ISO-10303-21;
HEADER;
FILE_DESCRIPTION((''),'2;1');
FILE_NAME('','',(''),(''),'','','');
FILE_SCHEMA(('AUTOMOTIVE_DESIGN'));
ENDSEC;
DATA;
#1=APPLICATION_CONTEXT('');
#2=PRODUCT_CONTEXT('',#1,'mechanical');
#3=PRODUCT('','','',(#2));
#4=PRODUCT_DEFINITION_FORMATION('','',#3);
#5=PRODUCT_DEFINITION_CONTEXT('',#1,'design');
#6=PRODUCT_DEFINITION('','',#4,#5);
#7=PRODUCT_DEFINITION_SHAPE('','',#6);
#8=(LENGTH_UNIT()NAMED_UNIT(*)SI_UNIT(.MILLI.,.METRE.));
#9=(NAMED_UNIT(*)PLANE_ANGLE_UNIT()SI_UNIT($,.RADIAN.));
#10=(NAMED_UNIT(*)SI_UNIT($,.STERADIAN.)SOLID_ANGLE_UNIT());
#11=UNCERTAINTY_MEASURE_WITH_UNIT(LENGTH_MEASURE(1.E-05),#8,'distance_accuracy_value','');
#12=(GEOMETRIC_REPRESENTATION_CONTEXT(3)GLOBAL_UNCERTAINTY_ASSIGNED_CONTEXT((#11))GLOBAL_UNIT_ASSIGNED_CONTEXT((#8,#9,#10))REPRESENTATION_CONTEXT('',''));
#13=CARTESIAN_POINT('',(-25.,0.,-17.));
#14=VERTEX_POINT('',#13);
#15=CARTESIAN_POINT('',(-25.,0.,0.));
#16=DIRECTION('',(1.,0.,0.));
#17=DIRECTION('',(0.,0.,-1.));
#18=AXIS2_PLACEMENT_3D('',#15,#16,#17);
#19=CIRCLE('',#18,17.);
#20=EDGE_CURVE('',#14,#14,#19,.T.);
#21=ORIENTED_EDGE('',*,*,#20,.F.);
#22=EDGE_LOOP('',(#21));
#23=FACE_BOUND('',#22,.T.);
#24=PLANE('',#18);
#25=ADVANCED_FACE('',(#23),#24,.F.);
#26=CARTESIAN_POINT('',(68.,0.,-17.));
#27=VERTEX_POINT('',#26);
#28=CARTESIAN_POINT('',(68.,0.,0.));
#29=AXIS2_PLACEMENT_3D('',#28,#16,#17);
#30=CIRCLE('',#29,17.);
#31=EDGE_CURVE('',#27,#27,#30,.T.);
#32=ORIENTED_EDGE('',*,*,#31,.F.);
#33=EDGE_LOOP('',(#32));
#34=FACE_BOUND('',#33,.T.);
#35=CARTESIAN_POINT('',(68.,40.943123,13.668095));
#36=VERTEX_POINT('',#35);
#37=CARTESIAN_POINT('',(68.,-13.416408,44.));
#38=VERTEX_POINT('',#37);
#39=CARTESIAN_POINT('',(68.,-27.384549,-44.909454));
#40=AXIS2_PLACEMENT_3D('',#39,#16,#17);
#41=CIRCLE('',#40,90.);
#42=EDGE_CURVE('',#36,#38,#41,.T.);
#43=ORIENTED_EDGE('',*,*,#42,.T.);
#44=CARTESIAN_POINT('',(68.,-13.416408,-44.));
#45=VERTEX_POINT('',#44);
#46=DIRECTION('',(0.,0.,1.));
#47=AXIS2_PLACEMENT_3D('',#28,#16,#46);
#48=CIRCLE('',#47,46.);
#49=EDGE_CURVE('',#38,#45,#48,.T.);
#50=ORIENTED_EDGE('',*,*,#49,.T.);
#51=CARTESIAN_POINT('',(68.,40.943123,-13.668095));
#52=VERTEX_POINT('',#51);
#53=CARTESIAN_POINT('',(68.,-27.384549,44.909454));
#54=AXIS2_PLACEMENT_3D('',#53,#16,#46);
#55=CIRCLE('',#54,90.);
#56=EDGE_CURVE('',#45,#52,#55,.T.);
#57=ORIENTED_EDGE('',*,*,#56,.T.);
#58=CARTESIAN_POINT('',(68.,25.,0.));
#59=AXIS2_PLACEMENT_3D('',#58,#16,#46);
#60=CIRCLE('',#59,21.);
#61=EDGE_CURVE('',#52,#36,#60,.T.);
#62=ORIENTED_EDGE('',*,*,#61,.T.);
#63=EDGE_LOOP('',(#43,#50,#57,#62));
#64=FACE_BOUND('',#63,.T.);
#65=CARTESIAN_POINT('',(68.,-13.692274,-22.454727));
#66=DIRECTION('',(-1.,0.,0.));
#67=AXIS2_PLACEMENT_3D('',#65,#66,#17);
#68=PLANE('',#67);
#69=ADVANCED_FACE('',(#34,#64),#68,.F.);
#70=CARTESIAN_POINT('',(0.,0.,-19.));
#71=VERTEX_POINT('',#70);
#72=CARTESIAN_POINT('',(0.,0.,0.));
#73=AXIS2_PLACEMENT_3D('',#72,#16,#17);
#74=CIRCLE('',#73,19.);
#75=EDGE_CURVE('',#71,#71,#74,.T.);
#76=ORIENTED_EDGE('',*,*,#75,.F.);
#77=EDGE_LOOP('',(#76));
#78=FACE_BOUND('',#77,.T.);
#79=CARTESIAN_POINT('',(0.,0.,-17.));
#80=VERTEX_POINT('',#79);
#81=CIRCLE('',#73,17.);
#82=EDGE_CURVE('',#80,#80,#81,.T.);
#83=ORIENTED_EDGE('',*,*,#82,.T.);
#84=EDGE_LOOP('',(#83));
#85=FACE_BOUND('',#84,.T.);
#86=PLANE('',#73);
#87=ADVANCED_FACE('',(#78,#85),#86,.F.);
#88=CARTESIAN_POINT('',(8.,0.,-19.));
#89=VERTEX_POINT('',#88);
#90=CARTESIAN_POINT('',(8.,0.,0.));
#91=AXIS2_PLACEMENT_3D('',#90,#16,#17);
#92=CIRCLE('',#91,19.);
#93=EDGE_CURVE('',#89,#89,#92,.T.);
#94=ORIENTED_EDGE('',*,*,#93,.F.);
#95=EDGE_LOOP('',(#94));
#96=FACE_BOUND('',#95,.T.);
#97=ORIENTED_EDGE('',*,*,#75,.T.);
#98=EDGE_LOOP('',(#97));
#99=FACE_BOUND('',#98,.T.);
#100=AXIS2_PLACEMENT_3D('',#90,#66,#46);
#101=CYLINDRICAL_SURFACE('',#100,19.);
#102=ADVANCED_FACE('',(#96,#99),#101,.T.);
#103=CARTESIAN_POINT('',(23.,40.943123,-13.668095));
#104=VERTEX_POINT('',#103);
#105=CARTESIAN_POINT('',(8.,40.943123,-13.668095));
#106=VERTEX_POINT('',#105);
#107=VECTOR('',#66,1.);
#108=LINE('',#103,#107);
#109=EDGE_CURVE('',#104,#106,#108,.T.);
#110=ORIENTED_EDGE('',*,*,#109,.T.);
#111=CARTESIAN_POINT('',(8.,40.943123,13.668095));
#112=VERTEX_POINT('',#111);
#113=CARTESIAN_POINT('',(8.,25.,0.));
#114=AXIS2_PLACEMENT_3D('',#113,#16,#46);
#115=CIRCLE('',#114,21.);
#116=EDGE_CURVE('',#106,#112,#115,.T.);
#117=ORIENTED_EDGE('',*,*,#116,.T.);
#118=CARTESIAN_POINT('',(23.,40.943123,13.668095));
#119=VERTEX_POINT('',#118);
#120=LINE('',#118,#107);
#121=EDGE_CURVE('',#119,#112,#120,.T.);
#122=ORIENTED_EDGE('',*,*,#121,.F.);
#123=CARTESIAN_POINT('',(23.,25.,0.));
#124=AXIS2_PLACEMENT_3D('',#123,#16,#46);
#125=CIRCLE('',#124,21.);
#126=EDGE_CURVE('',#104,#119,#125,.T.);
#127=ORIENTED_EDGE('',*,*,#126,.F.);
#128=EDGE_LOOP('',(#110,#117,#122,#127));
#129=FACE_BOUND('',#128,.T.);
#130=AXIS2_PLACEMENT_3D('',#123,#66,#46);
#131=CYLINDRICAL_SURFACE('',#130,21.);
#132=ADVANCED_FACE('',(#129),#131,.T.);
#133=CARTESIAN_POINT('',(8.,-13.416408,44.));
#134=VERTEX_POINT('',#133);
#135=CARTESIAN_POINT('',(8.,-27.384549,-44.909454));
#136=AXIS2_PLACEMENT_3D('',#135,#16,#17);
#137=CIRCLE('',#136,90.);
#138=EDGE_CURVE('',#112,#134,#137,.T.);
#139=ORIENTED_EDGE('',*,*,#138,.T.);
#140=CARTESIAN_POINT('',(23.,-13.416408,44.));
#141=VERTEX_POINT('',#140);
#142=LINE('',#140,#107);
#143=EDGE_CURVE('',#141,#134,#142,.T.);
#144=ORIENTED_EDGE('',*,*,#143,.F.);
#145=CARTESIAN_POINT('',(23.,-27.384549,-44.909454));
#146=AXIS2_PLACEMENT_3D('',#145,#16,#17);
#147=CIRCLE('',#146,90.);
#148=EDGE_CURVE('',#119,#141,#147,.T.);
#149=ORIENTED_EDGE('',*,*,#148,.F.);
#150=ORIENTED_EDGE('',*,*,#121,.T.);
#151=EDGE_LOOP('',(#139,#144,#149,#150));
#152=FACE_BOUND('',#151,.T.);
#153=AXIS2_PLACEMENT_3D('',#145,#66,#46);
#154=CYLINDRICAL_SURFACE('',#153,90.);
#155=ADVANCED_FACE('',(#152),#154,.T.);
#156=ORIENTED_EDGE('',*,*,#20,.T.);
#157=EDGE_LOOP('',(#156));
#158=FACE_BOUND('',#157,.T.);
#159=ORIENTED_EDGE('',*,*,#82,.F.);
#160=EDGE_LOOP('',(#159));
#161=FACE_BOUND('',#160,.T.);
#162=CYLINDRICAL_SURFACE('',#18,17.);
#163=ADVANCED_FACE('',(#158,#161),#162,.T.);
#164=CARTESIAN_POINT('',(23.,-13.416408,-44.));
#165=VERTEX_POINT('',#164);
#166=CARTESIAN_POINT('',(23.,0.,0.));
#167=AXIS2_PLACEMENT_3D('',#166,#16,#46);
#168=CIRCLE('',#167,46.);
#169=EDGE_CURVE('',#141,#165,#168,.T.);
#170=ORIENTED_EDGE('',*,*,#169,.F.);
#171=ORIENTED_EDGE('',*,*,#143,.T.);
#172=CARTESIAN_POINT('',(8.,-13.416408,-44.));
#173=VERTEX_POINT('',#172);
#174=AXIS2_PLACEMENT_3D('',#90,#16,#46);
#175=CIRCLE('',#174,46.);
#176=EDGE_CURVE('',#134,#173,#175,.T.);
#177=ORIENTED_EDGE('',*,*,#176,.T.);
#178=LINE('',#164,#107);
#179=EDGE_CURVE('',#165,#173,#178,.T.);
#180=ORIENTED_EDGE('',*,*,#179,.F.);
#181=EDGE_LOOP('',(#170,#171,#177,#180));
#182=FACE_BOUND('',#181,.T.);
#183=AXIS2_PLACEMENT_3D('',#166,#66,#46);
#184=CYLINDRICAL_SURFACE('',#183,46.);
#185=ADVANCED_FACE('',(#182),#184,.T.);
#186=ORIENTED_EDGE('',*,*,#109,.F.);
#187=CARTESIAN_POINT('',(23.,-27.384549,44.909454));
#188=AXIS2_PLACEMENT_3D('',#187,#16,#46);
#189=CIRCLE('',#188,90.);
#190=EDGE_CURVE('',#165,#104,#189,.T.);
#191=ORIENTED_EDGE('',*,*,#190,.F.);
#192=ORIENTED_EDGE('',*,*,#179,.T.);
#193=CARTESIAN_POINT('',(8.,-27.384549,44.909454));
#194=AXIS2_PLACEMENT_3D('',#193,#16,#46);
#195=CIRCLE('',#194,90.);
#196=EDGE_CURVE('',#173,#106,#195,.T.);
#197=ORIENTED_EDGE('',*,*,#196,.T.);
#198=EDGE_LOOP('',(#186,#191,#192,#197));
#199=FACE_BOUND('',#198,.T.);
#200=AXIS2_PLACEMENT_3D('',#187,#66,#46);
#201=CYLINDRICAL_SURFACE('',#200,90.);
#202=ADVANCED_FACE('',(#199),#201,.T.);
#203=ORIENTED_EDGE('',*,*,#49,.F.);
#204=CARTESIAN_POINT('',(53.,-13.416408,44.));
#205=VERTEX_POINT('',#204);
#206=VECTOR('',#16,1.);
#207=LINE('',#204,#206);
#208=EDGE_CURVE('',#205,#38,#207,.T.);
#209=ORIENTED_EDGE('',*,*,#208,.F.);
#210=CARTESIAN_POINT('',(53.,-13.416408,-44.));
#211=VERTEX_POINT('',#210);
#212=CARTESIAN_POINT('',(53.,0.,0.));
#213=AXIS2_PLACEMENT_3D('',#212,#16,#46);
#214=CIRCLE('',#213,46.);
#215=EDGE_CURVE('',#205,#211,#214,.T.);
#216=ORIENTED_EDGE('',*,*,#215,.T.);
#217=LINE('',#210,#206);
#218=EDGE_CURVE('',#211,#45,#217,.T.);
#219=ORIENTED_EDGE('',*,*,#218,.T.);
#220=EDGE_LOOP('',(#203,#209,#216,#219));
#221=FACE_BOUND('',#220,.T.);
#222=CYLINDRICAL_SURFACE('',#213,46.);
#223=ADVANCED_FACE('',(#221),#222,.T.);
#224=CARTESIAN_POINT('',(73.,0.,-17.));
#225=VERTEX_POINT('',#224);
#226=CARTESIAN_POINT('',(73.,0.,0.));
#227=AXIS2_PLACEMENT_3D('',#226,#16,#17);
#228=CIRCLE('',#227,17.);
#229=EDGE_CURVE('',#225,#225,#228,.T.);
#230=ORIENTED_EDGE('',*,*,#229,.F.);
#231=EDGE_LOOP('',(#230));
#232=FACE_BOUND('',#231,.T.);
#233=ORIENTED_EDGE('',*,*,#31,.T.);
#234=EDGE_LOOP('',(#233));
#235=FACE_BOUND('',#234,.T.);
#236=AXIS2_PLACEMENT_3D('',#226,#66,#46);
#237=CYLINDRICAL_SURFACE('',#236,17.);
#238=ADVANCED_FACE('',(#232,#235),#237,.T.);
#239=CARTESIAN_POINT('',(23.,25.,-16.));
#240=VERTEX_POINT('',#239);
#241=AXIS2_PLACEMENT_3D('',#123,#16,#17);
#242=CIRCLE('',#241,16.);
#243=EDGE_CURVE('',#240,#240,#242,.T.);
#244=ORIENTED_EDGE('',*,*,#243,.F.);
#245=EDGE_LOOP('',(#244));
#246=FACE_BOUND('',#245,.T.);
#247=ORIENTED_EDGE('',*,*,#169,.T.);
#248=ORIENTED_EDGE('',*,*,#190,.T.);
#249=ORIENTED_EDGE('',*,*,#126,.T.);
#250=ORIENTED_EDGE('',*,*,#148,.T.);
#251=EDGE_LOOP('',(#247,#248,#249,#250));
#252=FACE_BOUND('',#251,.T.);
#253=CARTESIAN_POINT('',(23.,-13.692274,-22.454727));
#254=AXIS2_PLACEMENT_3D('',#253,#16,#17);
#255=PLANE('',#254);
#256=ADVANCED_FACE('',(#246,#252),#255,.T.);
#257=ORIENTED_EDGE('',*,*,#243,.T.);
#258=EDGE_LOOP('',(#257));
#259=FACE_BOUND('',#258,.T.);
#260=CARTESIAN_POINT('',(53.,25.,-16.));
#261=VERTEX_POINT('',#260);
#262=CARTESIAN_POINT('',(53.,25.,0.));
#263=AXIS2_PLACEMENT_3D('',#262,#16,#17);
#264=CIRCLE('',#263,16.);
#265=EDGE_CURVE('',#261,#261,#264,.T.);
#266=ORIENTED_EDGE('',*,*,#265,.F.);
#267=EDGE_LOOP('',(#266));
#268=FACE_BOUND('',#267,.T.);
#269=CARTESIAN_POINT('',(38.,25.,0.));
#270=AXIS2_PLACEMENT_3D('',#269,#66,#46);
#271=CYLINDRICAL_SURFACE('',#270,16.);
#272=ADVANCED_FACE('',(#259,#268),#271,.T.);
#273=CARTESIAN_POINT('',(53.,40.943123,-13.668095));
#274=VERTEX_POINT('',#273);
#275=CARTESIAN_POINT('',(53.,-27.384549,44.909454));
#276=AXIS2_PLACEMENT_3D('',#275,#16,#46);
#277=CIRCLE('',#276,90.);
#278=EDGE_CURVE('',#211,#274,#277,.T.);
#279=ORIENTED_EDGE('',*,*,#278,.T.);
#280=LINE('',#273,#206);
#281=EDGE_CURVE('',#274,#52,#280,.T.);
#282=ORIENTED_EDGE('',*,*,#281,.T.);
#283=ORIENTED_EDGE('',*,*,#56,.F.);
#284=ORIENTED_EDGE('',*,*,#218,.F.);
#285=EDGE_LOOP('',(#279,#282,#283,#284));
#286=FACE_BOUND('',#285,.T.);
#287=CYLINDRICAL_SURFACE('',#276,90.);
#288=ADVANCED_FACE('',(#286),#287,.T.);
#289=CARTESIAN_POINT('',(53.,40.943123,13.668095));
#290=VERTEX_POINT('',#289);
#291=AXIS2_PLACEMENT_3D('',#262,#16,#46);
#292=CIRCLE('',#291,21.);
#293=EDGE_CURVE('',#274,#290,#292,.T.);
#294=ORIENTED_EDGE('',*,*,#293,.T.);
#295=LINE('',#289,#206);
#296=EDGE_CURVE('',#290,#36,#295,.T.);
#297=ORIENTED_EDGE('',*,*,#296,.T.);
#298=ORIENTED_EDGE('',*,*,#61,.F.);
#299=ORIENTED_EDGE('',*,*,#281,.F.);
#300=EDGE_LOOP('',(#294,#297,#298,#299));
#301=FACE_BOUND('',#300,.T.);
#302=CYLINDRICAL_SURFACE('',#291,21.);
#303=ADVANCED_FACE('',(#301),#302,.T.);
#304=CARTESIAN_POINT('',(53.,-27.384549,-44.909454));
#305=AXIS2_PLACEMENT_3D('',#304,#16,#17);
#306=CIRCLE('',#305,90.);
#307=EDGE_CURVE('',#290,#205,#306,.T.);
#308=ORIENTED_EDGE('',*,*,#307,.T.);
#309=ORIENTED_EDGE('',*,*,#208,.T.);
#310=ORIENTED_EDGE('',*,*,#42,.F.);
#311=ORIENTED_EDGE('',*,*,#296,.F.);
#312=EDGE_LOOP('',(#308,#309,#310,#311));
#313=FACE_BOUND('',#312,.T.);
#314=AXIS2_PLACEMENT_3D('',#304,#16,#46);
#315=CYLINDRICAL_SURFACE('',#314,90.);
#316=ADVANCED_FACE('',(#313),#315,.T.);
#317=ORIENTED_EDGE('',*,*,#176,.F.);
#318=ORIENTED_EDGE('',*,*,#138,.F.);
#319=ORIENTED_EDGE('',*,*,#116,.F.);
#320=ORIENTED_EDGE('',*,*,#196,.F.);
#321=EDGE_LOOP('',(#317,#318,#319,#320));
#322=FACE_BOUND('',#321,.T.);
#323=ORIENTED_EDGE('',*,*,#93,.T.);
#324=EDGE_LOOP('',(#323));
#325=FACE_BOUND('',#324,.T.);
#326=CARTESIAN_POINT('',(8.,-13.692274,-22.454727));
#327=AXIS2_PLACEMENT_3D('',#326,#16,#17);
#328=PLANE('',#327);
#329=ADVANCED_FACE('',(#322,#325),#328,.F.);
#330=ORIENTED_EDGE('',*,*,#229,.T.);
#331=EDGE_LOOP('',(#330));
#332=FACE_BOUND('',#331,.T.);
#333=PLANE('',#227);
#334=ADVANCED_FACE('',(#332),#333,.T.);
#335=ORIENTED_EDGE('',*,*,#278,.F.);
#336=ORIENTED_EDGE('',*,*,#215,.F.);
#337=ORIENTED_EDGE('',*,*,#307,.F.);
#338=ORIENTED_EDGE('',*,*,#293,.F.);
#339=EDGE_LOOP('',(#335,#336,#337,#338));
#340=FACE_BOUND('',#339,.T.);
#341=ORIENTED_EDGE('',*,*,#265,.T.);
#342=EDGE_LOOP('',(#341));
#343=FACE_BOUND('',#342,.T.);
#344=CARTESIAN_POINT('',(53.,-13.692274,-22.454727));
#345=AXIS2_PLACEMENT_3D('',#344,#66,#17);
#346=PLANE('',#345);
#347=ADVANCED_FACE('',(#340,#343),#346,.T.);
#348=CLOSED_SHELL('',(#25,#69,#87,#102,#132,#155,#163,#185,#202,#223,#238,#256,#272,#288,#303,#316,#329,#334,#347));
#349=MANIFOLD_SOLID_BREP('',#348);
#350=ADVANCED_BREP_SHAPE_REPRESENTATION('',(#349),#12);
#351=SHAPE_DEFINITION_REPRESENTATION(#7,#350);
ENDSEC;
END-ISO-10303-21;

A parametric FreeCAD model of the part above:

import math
import FreeCAD as App
import Part
import Sketcher

V = App.Vector

doc = App.newDocument("Part")
body = doc.addObject("PartDesign::Body", "Body")

sketch1 = body.newObject("Sketcher::SketchObject", "Sketch")
sketch1.AttachmentSupport = (doc.getObject("YZ_Plane"), [""])
sketch1.MapMode = "FlatFace"
sketch1.addGeometry(Part.Circle(V(0, 0, 0), V(0, 0, 1), 17), False)
sketch1.addConstraint([
    Sketcher.Constraint("Coincident", 0, 3, -1, 1),
    Sketcher.Constraint("Diameter", 0, 34.0),
])
pad1 = body.newObject("PartDesign::Pad", "Pad")
pad1.Profile = sketch1
pad1.Length = 25
pad1.Reversed = True

sketch2 = body.newObject("Sketcher::SketchObject", "Sketch001")
sketch2.AttachmentSupport = (doc.getObject("YZ_Plane"), [""])
sketch2.MapMode = "FlatFace"
sketch2.AttachmentOffset = App.Placement(V(0, 0, 8), App.Rotation())
sketch2.addGeometry(Part.Circle(V(0, 0, 0), V(0, 0, 1), 19), False)
sketch2.addConstraint([
    Sketcher.Constraint("Coincident", 0, 3, -1, 1),
    Sketcher.Constraint("Diameter", 0, 38.0),
])
pad2 = body.newObject("PartDesign::Pad", "Pad001")
pad2.Profile = sketch2
pad2.Length = 8
pad2.Reversed = True

sketch3 = body.newObject("Sketcher::SketchObject", "Sketch002")
sketch3.AttachmentSupport = (doc.getObject("YZ_Plane"), [""])
sketch3.MapMode = "FlatFace"
sketch3.AttachmentOffset = App.Placement(V(0, 0, 8), App.Rotation())
sketch3.addGeometry([
    Part.ArcOfCircle(Part.Circle(V(25, 0, 0), V(0, 0, 1), 21), math.radians(-41), math.radians(41)),
    Part.ArcOfCircle(Part.Circle(V(-27, -45, 0), V(0, 0, 1), 90), math.radians(41), math.radians(81)),
    Part.ArcOfCircle(Part.Circle(V(0, 0, 0), V(0, 0, 1), 46), math.radians(107), math.radians(253)),
    Part.ArcOfCircle(Part.Circle(V(-27, 45, 0), V(0, 0, 1), 90), math.radians(-81), math.radians(-41)),
], False)
sketch3.addConstraint([
    Sketcher.Constraint("Tangent", 0, 2, 1, 1),
    Sketcher.Constraint("Coincident", 1, 2, 2, 1),
    Sketcher.Constraint("Coincident", 2, 2, 3, 1),
    Sketcher.Constraint("Tangent", 3, 2, 0, 1),
    Sketcher.Constraint("Coincident", 2, 3, -1, 1),
    Sketcher.Constraint("Equal", 1, 3),
    Sketcher.Constraint("Symmetric", 1, 3, 3, 3, -1),
    Sketcher.Constraint("Radius", 0, 21.0),
    Sketcher.Constraint("Radius", 1, 90.0),
    Sketcher.Constraint("Radius", 2, 46.0),
    Sketcher.Constraint("DistanceX", -1, 1, 0, 3, 25.0),
    Sketcher.Constraint("DistanceY", -1, 1, 1, 2, 44.0),
])
pad3 = body.newObject("PartDesign::Pad", "Pad002")
pad3.Profile = sketch3
pad3.Length = 15

sketch4 = body.newObject("Sketcher::SketchObject", "Sketch003")
sketch4.AttachmentSupport = (doc.getObject("YZ_Plane"), [""])
sketch4.MapMode = "FlatFace"
sketch4.AttachmentOffset = App.Placement(V(0, 0, 23), App.Rotation())
sketch4.addGeometry(Part.Circle(V(25, 0, 0), V(0, 0, 1), 16), False)
sketch4.addConstraint([
    Sketcher.Constraint("PointOnObject", 0, 3, -1),
    Sketcher.Constraint("Diameter", 0, 32.0),
    Sketcher.Constraint("DistanceX", -1, 1, 0, 3, 25.0),
])
pad4 = body.newObject("PartDesign::Pad", "Pad003")
pad4.Profile = sketch4
pad4.Length = 15
doc.recompute()

datumplane = body.newObject("PartDesign::Plane", "DatumPlane")
datumplane.AttachmentSupport = (doc.getObject("YZ_Plane"), [""])
datumplane.MapMode = "FlatFace"
datumplane.AttachmentOffset = App.Placement(V(0, 0, 38), App.Rotation())
mirrored = body.newObject("PartDesign::Mirrored", "Mirrored")
mirrored.Originals = [pad3, pad4]
mirrored.MirrorPlane = (datumplane, [""])
body.Tip = mirrored

sketch5 = body.newObject("Sketcher::SketchObject", "Sketch004")
sketch5.AttachmentSupport = (doc.getObject("YZ_Plane"), [""])
sketch5.MapMode = "FlatFace"
sketch5.AttachmentOffset = App.Placement(V(0, 0, 73), App.Rotation())
sketch5.addGeometry(Part.Circle(V(0, 0, 0), V(0, 0, 1), 17), False)
sketch5.addConstraint([
    Sketcher.Constraint("Coincident", 0, 3, -1, 1),
    Sketcher.Constraint("Diameter", 0, 34.0),
])
pad5 = body.newObject("PartDesign::Pad", "Pad004")
pad5.Profile = sketch5
pad5.Length = 5
pad5.Reversed = True

doc.recompute()
